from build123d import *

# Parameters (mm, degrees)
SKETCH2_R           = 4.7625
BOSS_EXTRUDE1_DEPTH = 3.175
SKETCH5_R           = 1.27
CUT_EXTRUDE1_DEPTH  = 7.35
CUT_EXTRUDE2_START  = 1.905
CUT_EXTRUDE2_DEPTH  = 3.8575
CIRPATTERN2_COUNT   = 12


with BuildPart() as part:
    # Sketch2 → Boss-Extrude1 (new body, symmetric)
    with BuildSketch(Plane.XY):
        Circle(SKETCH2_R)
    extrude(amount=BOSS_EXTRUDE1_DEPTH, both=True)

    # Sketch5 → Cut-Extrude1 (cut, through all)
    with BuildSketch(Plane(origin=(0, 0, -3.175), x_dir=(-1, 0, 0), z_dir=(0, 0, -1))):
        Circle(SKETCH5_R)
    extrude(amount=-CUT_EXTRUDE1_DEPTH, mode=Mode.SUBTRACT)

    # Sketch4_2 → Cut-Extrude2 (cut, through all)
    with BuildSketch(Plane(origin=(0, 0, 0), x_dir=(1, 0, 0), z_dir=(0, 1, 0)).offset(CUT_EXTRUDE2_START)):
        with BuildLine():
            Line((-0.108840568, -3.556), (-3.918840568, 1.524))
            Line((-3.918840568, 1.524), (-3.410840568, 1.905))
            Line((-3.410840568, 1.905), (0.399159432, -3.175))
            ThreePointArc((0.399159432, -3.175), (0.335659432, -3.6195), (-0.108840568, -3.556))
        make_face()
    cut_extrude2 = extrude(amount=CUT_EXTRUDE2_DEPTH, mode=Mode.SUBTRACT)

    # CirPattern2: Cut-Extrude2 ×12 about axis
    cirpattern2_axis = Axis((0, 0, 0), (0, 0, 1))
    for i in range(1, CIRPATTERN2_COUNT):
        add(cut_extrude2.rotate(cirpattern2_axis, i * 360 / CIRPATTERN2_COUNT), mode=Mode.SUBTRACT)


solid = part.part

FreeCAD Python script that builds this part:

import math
import FreeCAD as App
import Part
import Sketcher

V = App.Vector
Q = App.Units.Quantity

doc = App.newDocument("Part")
params = doc.addObject("Spreadsheet::Sheet", "Params")
for row, (alias, value) in enumerate([
    ("sketch1_diameter", "0.375 in"),
    ("pad1_length", "0.25 in"),
    ("sketch2_diameter", "0.1 in"),
    ("sketch3_length", "0.25 in"),
], start=1):
    params.set(f"A{row}", alias)
    params.set(f"B{row}", "=" + value)
    params.setAlias(f"B{row}", alias)

body = doc.addObject("PartDesign::Body", "Body")

# Sketch on XY plane
sketch1 = doc.addObject("Sketcher::SketchObject", "Sketch")
body.addObject(sketch1)
sketch1.AttachmentSupport = (doc.XY_Plane, [""])
sketch1.MapMode = "FlatFace"
sketch1.addGeometry(Part.Circle(V(0, 0, 0), V(0, 0, 1), 4.7625), False)
sketch1.addConstraint(Sketcher.Constraint("Coincident", 0, 3, -1, 1))
sketch1.addConstraint(Sketcher.Constraint("Diameter", 0, Q("0.375 in")))
sketch1.setExpression("Constraints[1]", "Params.sketch1_diameter")
pad1 = doc.addObject("PartDesign::Pad", "Pad")
body.addObject(pad1)
pad1.Profile = sketch1
pad1.setExpression("Length", "Params.pad1_length")
pad1.Midplane = True

# Sketch on XY plane
sketch2 = doc.addObject("Sketcher::SketchObject", "Sketch001")
body.addObject(sketch2)
sketch2.AttachmentSupport = (doc.XY_Plane, [""])
sketch2.MapMode = "FlatFace"
sketch2.AttachmentOffset = App.Placement(V(0, 0, -0.125 * 25.4), App.Rotation())
sketch2.addGeometry(Part.Circle(V(0, 0, 0), V(0, 0, 1), 1.27), False)
sketch2.addConstraint(Sketcher.Constraint("Coincident", 0, 3, -1, 1))
sketch2.addConstraint(Sketcher.Constraint("Diameter", 0, Q("0.1 in")))
sketch2.setExpression("Constraints[1]", "Params.sketch2_diameter")
pocket1 = doc.addObject("PartDesign::Pocket", "Pocket")
body.addObject(pocket1)
pocket1.Profile = sketch2
pocket1.Type = "ThroughAll"
pocket1.Reversed = True

# Sketch on XZ plane
sketch3 = doc.addObject("Sketcher::SketchObject", "Sketch002")
body.addObject(sketch3)
sketch3.AttachmentSupport = (doc.XZ_Plane, [""])
sketch3.MapMode = "FlatFace"
sketch3.AttachmentOffset = App.Placement(V(0, 0, -0.075 * 25.4), App.Rotation())
sketch3.addGeometry(Part.LineSegment(V(-3.918841, -1.524, 0), V(-0.108841, 3.556, 0)), False)
sketch3.addGeometry(Part.ArcOfCircle(Part.Circle(V(0.145159, 3.3655, 0), V(0, 0, 1), 0.3175), math.radians(-36.869898), math.radians(143.130102)), False)
sketch3.addGeometry(Part.LineSegment(V(0.399159, 3.175, 0), V(-3.410841, -1.905, 0)), False)
sketch3.addGeometry(Part.LineSegment(V(-3.410841, -1.905, 0), V(-3.918841, -1.524, 0)), False)
sketch3.addConstraint(Sketcher.Constraint("Tangent", 0, 2, 1, 2))
sketch3.addConstraint(Sketcher.Constraint("Tangent", 1, 1, 2, 1))
sketch3.addConstraint(Sketcher.Constraint("Coincident", 2, 2, 3, 1))
sketch3.addConstraint(Sketcher.Constraint("Coincident", 3, 2, 0, 1))
sketch3.addConstraint(Sketcher.Constraint("Parallel", 0, 2))
sketch3.addConstraint(Sketcher.Constraint("Perpendicular", 2, 3))
sketch3.addConstraint(Sketcher.Constraint("Radius", 1, Q("0.0125 in")))
sketch3.addConstraint(Sketcher.Constraint("DistanceY", 2, 2, 1, 1, Q("0.2 in")))
sketch3.addConstraint(Sketcher.Constraint("Distance", 0, Q("0.25 in")))
sketch3.addConstraint(Sketcher.Constraint("DistanceY", -1, 1, 0, 2, Q("0.14 in")))
sketch3.addConstraint(Sketcher.Constraint("DistanceX", -1, 1, 1, 3, 0.145159))
sketch3.setExpression("Constraints[8]", "Params.sketch3_length")
pocket2 = doc.addObject("PartDesign::Pocket", "Pocket001")
body.addObject(pocket2)
pocket2.Profile = sketch3
pocket2.Type = "ThroughAll"
doc.recompute()

polarpattern = doc.addObject("PartDesign::PolarPattern", "PolarPattern")
body.addObject(polarpattern)
polarpattern.Originals = [pocket2]
polarpattern.Axis = (doc.Z_Axis, [""])
polarpattern.Angle = 360
polarpattern.Occurrences = 12
body.Tip = polarpattern

doc.recompute()
